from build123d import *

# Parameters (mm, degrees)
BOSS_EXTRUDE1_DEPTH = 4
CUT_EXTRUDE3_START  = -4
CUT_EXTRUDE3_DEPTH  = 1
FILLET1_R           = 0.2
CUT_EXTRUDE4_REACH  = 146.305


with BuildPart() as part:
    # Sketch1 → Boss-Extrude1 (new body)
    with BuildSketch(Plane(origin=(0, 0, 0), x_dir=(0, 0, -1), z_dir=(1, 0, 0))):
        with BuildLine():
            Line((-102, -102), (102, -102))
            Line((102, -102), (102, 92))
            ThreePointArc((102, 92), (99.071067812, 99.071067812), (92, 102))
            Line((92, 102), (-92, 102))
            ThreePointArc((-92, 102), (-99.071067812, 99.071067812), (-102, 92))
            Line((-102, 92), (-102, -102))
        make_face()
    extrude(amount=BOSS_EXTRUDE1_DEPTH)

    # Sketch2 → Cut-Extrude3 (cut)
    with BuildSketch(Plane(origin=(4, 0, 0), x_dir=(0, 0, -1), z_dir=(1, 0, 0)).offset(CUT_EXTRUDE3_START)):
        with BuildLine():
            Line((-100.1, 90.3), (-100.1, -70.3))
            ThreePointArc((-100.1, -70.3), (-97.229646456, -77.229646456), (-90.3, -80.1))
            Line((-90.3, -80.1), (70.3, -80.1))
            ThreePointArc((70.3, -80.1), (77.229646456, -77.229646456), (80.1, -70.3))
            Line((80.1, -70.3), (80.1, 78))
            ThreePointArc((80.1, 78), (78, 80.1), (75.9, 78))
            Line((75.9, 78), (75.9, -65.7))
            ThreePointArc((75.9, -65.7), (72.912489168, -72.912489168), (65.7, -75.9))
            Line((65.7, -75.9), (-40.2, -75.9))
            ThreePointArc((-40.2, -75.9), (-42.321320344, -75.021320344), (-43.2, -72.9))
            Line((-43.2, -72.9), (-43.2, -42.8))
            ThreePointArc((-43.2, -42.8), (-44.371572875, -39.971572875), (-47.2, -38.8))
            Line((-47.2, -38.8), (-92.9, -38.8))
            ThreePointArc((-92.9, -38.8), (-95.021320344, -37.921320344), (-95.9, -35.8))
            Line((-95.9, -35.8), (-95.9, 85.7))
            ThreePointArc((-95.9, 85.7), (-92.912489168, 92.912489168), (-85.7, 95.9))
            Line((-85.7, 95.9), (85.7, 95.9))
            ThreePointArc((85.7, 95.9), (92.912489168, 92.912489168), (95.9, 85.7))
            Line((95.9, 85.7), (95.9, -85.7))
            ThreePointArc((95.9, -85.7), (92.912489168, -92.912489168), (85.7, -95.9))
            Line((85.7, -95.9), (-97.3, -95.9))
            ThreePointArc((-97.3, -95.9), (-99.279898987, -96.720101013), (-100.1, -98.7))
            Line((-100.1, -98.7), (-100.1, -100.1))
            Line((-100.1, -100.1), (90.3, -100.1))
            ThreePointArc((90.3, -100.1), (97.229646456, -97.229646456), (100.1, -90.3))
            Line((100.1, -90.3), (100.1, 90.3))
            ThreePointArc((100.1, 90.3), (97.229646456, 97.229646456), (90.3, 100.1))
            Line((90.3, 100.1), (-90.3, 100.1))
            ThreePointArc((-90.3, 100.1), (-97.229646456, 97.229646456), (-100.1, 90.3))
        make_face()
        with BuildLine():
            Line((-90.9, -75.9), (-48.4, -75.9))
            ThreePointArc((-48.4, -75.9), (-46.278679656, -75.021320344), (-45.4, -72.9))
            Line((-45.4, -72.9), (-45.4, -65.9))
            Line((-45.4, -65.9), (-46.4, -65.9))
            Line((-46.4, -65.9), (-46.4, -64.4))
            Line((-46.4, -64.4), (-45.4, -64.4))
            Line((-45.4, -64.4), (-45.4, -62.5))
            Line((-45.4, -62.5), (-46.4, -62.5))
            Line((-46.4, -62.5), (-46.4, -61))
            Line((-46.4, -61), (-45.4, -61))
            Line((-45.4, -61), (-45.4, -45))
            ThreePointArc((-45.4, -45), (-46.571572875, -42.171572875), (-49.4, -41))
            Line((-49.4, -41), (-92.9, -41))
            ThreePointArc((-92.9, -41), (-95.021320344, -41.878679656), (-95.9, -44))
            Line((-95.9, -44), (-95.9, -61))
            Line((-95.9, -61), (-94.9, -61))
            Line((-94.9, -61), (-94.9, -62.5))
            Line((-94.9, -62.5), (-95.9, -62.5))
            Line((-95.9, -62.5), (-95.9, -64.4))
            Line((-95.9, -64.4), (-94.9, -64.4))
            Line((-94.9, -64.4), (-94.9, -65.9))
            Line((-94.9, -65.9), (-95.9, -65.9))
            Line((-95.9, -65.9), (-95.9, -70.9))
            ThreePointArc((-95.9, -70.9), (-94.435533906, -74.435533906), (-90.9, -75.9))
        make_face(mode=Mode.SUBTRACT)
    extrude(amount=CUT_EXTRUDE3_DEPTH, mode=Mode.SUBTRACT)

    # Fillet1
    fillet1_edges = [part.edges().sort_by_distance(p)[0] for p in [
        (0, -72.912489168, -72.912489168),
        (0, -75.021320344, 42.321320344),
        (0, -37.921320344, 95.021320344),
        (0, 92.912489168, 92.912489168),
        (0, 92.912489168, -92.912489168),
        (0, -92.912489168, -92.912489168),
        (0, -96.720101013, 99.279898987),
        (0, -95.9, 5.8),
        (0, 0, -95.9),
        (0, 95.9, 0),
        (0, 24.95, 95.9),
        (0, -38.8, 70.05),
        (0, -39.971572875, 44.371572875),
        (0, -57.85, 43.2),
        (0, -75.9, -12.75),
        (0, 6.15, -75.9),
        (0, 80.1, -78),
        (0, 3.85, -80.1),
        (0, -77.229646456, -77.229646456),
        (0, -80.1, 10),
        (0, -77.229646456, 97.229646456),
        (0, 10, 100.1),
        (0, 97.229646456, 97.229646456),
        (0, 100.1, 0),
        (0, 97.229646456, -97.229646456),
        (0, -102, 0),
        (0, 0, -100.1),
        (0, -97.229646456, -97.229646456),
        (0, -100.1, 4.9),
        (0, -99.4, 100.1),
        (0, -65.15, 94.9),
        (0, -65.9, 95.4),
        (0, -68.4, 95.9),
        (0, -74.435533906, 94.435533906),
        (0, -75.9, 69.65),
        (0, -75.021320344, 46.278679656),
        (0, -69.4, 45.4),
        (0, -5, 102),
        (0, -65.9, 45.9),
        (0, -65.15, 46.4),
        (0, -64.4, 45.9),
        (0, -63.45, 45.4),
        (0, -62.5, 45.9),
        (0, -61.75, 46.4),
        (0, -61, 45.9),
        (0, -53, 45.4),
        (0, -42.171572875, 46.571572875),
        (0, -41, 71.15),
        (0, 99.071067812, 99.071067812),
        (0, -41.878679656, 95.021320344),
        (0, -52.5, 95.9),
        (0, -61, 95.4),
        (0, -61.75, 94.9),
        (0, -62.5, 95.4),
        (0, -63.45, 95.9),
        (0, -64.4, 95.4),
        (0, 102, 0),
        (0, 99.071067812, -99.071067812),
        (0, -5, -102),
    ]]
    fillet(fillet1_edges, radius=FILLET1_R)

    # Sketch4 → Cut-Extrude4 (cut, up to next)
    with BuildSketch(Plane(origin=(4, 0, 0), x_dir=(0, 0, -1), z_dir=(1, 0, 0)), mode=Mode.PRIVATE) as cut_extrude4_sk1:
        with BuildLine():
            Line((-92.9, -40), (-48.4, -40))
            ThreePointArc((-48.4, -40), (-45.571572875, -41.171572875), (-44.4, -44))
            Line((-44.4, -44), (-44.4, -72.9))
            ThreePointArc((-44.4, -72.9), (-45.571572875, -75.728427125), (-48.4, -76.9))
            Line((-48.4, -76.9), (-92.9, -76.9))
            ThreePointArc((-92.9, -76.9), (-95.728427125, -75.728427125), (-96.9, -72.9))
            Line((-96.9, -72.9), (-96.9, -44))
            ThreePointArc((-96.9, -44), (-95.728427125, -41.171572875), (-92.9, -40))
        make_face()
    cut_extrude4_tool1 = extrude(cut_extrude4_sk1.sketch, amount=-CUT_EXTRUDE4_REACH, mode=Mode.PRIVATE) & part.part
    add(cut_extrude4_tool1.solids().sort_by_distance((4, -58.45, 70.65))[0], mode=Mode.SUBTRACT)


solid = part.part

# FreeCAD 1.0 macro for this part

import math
import FreeCAD as App
import Part
import Sketcher
Q = App.Units.Quantity


def edges_at(feature, points):
    """Names of the edges that pass closest to the given points."""
    edges = feature.Shape.Edges
    near = lambda p: min(range(len(edges)), key=lambda i: edges[i].distToShape(Part.Vertex(*p))[0])
    return sorted({f"Edge{near(p) + 1}" for p in points})

doc = App.newDocument("Part")
body = doc.addObject("PartDesign::Body", "Body")

# Sketch on YZ plane
sketch1 = doc.addObject("Sketcher::SketchObject", "Sketch")
body.addObject(sketch1)
sketch1.AttachmentSupport = (doc.YZ_Plane, [""])
sketch1.MapMode = "FlatFace"
sketch1.addGeometry([
    Part.LineSegment(App.Vector(-102, 102, 0), App.Vector(-102, -102, 0)),  # 0
    Part.LineSegment(App.Vector(-102, -102, 0), App.Vector(92, -102, 0)),  # 1
    Part.ArcOfCircle(Part.Circle(App.Vector(92, -92, 0), App.Vector(0, 0, 1), 10), math.radians(-90), math.radians(0)),  # 2
    Part.LineSegment(App.Vector(102, -92, 0), App.Vector(102, 92, 0)),  # 3
    Part.ArcOfCircle(Part.Circle(App.Vector(92, 92, 0), App.Vector(0, 0, 1), 10), math.radians(0), math.radians(90)),  # 4
    Part.LineSegment(App.Vector(92, 102, 0), App.Vector(-102, 102, 0)),  # 5
], False)
sketch1.addConstraint([
    Sketcher.Constraint("Coincident", 0, 2, 1, 1),
    Sketcher.Constraint("Tangent", 1, 2, 2, 1),
    Sketcher.Constraint("Tangent", 2, 2, 3, 1),
    Sketcher.Constraint("Tangent", 3, 2, 4, 1),
    Sketcher.Constraint("Tangent", 4, 2, 5, 1),
    Sketcher.Constraint("Coincident", 5, 2, 0, 1),
    Sketcher.Constraint("Vertical", 0),
    Sketcher.Constraint("Horizontal", 1),
    Sketcher.Constraint("Vertical", 3),
    Sketcher.Constraint("Horizontal", 5),
    Sketcher.Constraint("Equal", 2, 4),
    Sketcher.Constraint("Radius", 2, Q("10 mm")),
    Sketcher.Constraint("DistanceX", 1, 1, 1, 2, Q("194 mm")),
    Sketcher.Constraint("DistanceY", 0, 2, 0, 1, Q("204 mm")),
    Sketcher.Constraint("DistanceX", -1, 1, 2, 3, Q("92 mm")),
    Sketcher.Constraint("DistanceY", 2, 3, -1, 1, Q("92 mm")),
])
pad1 = doc.addObject("PartDesign::Pad", "Pad")
body.addObject(pad1)
pad1.Profile = sketch1
pad1.Length = 4

# Sketch on YZ plane
sketch2 = doc.addObject("Sketcher::SketchObject", "Sketch001")
body.addObject(sketch2)
sketch2.AttachmentSupport = (doc.YZ_Plane, [""])
sketch2.MapMode = "FlatFace"
sketch2.addGeometry([
    Part.LineSegment(App.Vector(90.3, 100.1, 0), App.Vector(-70.3, 100.1, 0)),  # 0
    Part.ArcOfCircle(Part.Circle(App.Vector(-70.3, 90.3, 0), App.Vector(0, 0, 1), 9.8), math.radians(90), math.radians(180)),  # 1
    Part.LineSegment(App.Vector(-80.1, 90.3, 0), App.Vector(-80.1, -70.3, 0)),  # 2
    Part.ArcOfCircle(Part.Circle(App.Vector(-70.3, -70.3, 0), App.Vector(0, 0, 1), 9.8), math.radians(180), math.radians(270)),  # 3
    Part.LineSegment(App.Vector(-70.3, -80.1, 0), App.Vector(78, -80.1, 0)),  # 4
    Part.ArcOfCircle(Part.Circle(App.Vector(78, -78, 0), App.Vector(0, 0, 1), 2.1), math.radians(-90), math.radians(90)),  # 5
    Part.LineSegment(App.Vector(78, -75.9, 0), App.Vector(-65.7, -75.9, 0)),  # 6
    Part.ArcOfCircle(Part.Circle(App.Vector(-65.7, -65.7, 0), App.Vector(0, 0, 1), 10.2), math.radians(180), math.radians(270)),  # 7
    Part.LineSegment(App.Vector(-75.9, -65.7, 0), App.Vector(-75.9, 40.2, 0)),  # 8
    Part.ArcOfCircle(Part.Circle(App.Vector(-72.9, 40.2, 0), App.Vector(0, 0, 1), 3), math.radians(90), math.radians(180)),  # 9
    Part.LineSegment(App.Vector(-72.9, 43.2, 0), App.Vector(-42.8, 43.2, 0)),  # 10
    Part.ArcOfCircle(Part.Circle(App.Vector(-42.8, 47.2, 0), App.Vector(0, 0, 1), 4), math.radians(-90), math.radians(0)),  # 11
    Part.LineSegment(App.Vector(-38.8, 47.2, 0), App.Vector(-38.8, 92.9, 0)),  # 12
    Part.ArcOfCircle(Part.Circle(App.Vector(-35.8, 92.9, 0), App.Vector(0, 0, 1), 3), math.radians(90), math.radians(180)),  # 13
    Part.LineSegment(App.Vector(-35.8, 95.9, 0), App.Vector(85.7, 95.9, 0)),  # 14
    Part.ArcOfCircle(Part.Circle(App.Vector(85.7, 85.7, 0), App.Vector(0, 0, 1), 10.2), math.radians(0), math.radians(90)),  # 15
    Part.LineSegment(App.Vector(95.9, 85.7, 0), App.Vector(95.9, -85.7, 0)),  # 16
    Part.ArcOfCircle(Part.Circle(App.Vector(85.7, -85.7, 0), App.Vector(0, 0, 1), 10.2), math.radians(-90), math.radians(0)),  # 17
    Part.LineSegment(App.Vector(85.7, -95.9, 0), App.Vector(-85.7, -95.9, 0)),  # 18
    Part.ArcOfCircle(Part.Circle(App.Vector(-85.7, -85.7, 0), App.Vector(0, 0, 1), 10.2), math.radians(180), math.radians(270)),  # 19
    Part.LineSegment(App.Vector(-95.9, -85.7, 0), App.Vector(-95.9, 97.3, 0)),  # 20
    Part.ArcOfCircle(Part.Circle(App.Vector(-98.7, 97.3, 0), App.Vector(0, 0, 1), 2.8), math.radians(0), math.radians(90)),  # 21
    Part.LineSegment(App.Vector(-98.7, 100.1, 0), App.Vector(-100.1, 100.1, 0)),  # 22
    Part.LineSegment(App.Vector(-100.1, 100.1, 0), App.Vector(-100.1, -90.3, 0)),  # 23
    Part.ArcOfCircle(Part.Circle(App.Vector(-90.3, -90.3, 0), App.Vector(0, 0, 1), 9.8), math.radians(180), math.radians(270)),  # 24
    Part.LineSegment(App.Vector(-90.3, -100.1, 0), App.Vector(90.3, -100.1, 0)),  # 25
    Part.ArcOfCircle(Part.Circle(App.Vector(90.3, -90.3, 0), App.Vector(0, 0, 1), 9.8), math.radians(-90), math.radians(0)),  # 26
    Part.LineSegment(App.Vector(100.1, -90.3, 0), App.Vector(100.1, 90.3, 0)),  # 27
    Part.ArcOfCircle(Part.Circle(App.Vector(90.3, 90.3, 0), App.Vector(0, 0, 1), 9.8), math.radians(0), math.radians(90)),  # 28
    Part.LineSegment(App.Vector(-75.9, 48.4, 0), App.Vector(-75.9, 90.9, 0)),  # 29
    Part.ArcOfCircle(Part.Circle(App.Vector(-70.9, 90.9, 0), App.Vector(0, 0, 1), 5), math.radians(90), math.radians(180)),  # 30
    Part.LineSegment(App.Vector(-70.9, 95.9, 0), App.Vector(-65.9, 95.9, 0)),  # 31
    Part.LineSegment(App.Vector(-65.9, 95.9, 0), App.Vector(-65.9, 94.9, 0)),  # 32
    Part.LineSegment(App.Vector(-65.9, 94.9, 0), App.Vector(-64.4, 94.9, 0)),  # 33
    Part.LineSegment(App.Vector(-64.4, 94.9, 0), App.Vector(-64.4, 95.9, 0)),  # 34
    Part.LineSegment(App.Vector(-64.4, 95.9, 0), App.Vector(-62.5, 95.9, 0)),  # 35
    Part.LineSegment(App.Vector(-62.5, 95.9, 0), App.Vector(-62.5, 94.9, 0)),  # 36
    Part.LineSegment(App.Vector(-62.5, 94.9, 0), App.Vector(-61, 94.9, 0)),  # 37
    Part.LineSegment(App.Vector(-61, 94.9, 0), App.Vector(-61, 95.9, 0)),  # 38
    Part.LineSegment(App.Vector(-61, 95.9, 0), App.Vector(-44, 95.9, 0)),  # 39
    Part.ArcOfCircle(Part.Circle(App.Vector(-44, 92.9, 0), App.Vector(0, 0, 1), 3), math.radians(0), math.radians(90)),  # 40
    Part.LineSegment(App.Vector(-41, 92.9, 0), App.Vector(-41, 49.4, 0)),  # 41
    Part.ArcOfCircle(Part.Circle(App.Vector(-45, 49.4, 0), App.Vector(0, 0, 1), 4), math.radians(-90), math.radians(0)),  # 42
    Part.LineSegment(App.Vector(-45, 45.4, 0), App.Vector(-61, 45.4, 0)),  # 43
    Part.LineSegment(App.Vector(-61, 45.4, 0), App.Vector(-61, 46.4, 0)),  # 44
    Part.LineSegment(App.Vector(-61, 46.4, 0), App.Vector(-62.5, 46.4, 0)),  # 45
    Part.LineSegment(App.Vector(-62.5, 46.4, 0), App.Vector(-62.5, 45.4, 0)),  # 46
    Part.LineSegment(App.Vector(-62.5, 45.4, 0), App.Vector(-64.4, 45.4, 0)),  # 47
    Part.LineSegment(App.Vector(-64.4, 45.4, 0), App.Vector(-64.4, 46.4, 0)),  # 48
    Part.LineSegment(App.Vector(-64.4, 46.4, 0), App.Vector(-65.9, 46.4, 0)),  # 49
    Part.LineSegment(App.Vector(-65.9, 46.4, 0), App.Vector(-65.9, 45.4, 0)),  # 50
    Part.LineSegment(App.Vector(-65.9, 45.4, 0), App.Vector(-72.9, 45.4, 0)),  # 51
    Part.ArcOfCircle(Part.Circle(App.Vector(-72.9, 48.4, 0), App.Vector(0, 0, 1), 3), math.radians(180), math.radians(270)),  # 52
], False)
sketch2.addConstraint([
    Sketcher.Constraint("Tangent", 0, 2, 1, 1),
    Sketcher.Constraint("Tangent", 1, 2, 2, 1),
    Sketcher.Constraint("Tangent", 2, 2, 3, 1),
    Sketcher.Constraint("Tangent", 3, 2, 4, 1),
    Sketcher.Constraint("Tangent", 4, 2, 5, 1),
    Sketcher.Constraint("Tangent", 5, 2, 6, 1),
    Sketcher.Constraint("Tangent", 6, 2, 7, 2),
    Sketcher.Constraint("Tangent", 7, 1, 8, 1),
    Sketcher.Constraint("Tangent", 8, 2, 9, 2),
    Sketcher.Constraint("Tangent", 9, 1, 10, 1),
    Sketcher.Constraint("Tangent", 10, 2, 11, 1),
    Sketcher.Constraint("Tangent", 11, 2, 12, 1),
    Sketcher.Constraint("Tangent", 12, 2, 13, 2),
    Sketcher.Constraint("Tangent", 13, 1, 14, 1),
    Sketcher.Constraint("Tangent", 14, 2, 15, 2),
    Sketcher.Constraint("Tangent", 15, 1, 16, 1),
    Sketcher.Constraint("Tangent", 16, 2, 17, 2),
    Sketcher.Constraint("Tangent", 17, 1, 18, 1),
    Sketcher.Constraint("Tangent", 18, 2, 19, 2),
    Sketcher.Constraint("Tangent", 19, 1, 20, 1),
    Sketcher.Constraint("Tangent", 20, 2, 21, 1),
    Sketcher.Constraint("Tangent", 21, 2, 22, 1),
    Sketcher.Constraint("Coincident", 22, 2, 23, 1),
    Sketcher.Constraint("Tangent", 23, 2, 24, 1),
    Sketcher.Constraint("Tangent", 24, 2, 25, 1),
    Sketcher.Constraint("Tangent", 25, 2, 26, 1),
    Sketcher.Constraint("Tangent", 26, 2, 27, 1),
    Sketcher.Constraint("Tangent", 27, 2, 28, 1),
    Sketcher.Constraint("Tangent", 28, 2, 0, 1),
    Sketcher.Constraint("Tangent", 29, 2, 30, 2),
    Sketcher.Constraint("Tangent", 30, 1, 31, 1),
    Sketcher.Constraint("Coincident", 31, 2, 32, 1),
    Sketcher.Constraint("Coincident", 32, 2, 33, 1),
    Sketcher.Constraint("Coincident", 33, 2, 34, 1),
    Sketcher.Constraint("Coincident", 34, 2, 35, 1),
    Sketcher.Constraint("Coincident", 35, 2, 36, 1),
    Sketcher.Constraint("Coincident", 36, 2, 37, 1),
    Sketcher.Constraint("Coincident", 37, 2, 38, 1),
    Sketcher.Constraint("Coincident", 38, 2, 39, 1),
    Sketcher.Constraint("Tangent", 39, 2, 40, 2),
    Sketcher.Constraint("Tangent", 40, 1, 41, 1),
    Sketcher.Constraint("Tangent", 41, 2, 42, 2),
    Sketcher.Constraint("Tangent", 42, 1, 43, 1),
    Sketcher.Constraint("Coincident", 43, 2, 44, 1),
    Sketcher.Constraint("Coincident", 44, 2, 45, 1),
    Sketcher.Constraint("Coincident", 45, 2, 46, 1),
    Sketcher.Constraint("Coincident", 46, 2, 47, 1),
    Sketcher.Constraint("Coincident", 47, 2, 48, 1),
    Sketcher.Constraint("Coincident", 48, 2, 49, 1),
    Sketcher.Constraint("Coincident", 49, 2, 50, 1),
    Sketcher.Constraint("Coincident", 50, 2, 51, 1),
    Sketcher.Constraint("Tangent", 51, 2, 52, 2),
    Sketcher.Constraint("Tangent", 52, 1, 29, 1),
    Sketcher.Constraint("Horizontal", 0),
    Sketcher.Constraint("Vertical", 2),
    Sketcher.Constraint("Horizontal", 4),
    Sketcher.Constraint("Horizontal", 6),
    Sketcher.Constraint("Vertical", 8),
    Sketcher.Constraint("Horizontal", 10),
    Sketcher.Constraint("Vertical", 12),
    Sketcher.Constraint("Horizontal", 14),
    Sketcher.Constraint("Vertical", 16),
    Sketcher.Constraint("Horizontal", 18),
    Sketcher.Constraint("Vertical", 20),
    Sketcher.Constraint("Horizontal", 22),
    Sketcher.Constraint("Vertical", 23),
    Sketcher.Constraint("Horizontal", 25),
    Sketcher.Constraint("Vertical", 27),
    Sketcher.Constraint("Vertical", 29),
    Sketcher.Constraint("Horizontal", 31),
    Sketcher.Constraint("Vertical", 32),
    Sketcher.Constraint("Horizontal", 33),
    Sketcher.Constraint("Vertical", 34),
    Sketcher.Constraint("Horizontal", 35),
    Sketcher.Constraint("Vertical", 36),
    Sketcher.Constraint("Horizontal", 37),
    Sketcher.Constraint("Vertical", 38),
    Sketcher.Constraint("Horizontal", 39),
    Sketcher.Constraint("Vertical", 41),
    Sketcher.Constraint("Horizontal", 43),
    Sketcher.Constraint("Vertical", 44),
    Sketcher.Constraint("Horizontal", 45),
    Sketcher.Constraint("Vertical", 46),
    Sketcher.Constraint("Horizontal", 47),
    Sketcher.Constraint("Vertical", 48),
    Sketcher.Constraint("Horizontal", 49),
    Sketcher.Constraint("Vertical", 50),
    Sketcher.Constraint("Horizontal", 51),
    Sketcher.Constraint("Equal", 1, 3),
    Sketcher.Constraint("Equal", 9, 13),
    Sketcher.Constraint("Equal", 7, 15),
    Sketcher.Constraint("Equal", 15, 17),
    Sketcher.Constraint("Equal", 17, 19),
    Sketcher.Constraint("Equal", 3, 24),
    Sketcher.Constraint("Equal", 24, 26),
    Sketcher.Constraint("Equal", 26, 28),
    Sketcher.Constraint("Equal", 13, 40),
    Sketcher.Constraint("Equal", 11, 42),
    Sketcher.Constraint("Equal", 40, 52),
    Sketcher.Constraint("Symmetric", 15, 3, 19, 3, -1, 1),
    Sketcher.Constraint("Symmetric", 24, 3, 28, 3, -1, 1),
    Sketcher.Constraint("Horizontal", 13, 3, 40, 3),
    Sketcher.Constraint("Horizontal", 0, 2, 21, 2),
    Sketcher.Constraint("Horizontal", 14, 2, 30, 1),
    Sketcher.Constraint("Horizontal", 31, 2, 34, 2),
    Sketcher.Constraint("Horizontal", 33, 2, 36, 2),
    Sketcher.Constraint("Horizontal", 43, 2, 46, 2),
    Sketcher.Constraint("Horizontal", 45, 2, 48, 2),
    Sketcher.Constraint("Horizontal", 47, 2, 50, 2),
    Sketcher.Constraint("Vertical", 9, 3, 52, 3),
    Sketcher.Constraint("Vertical", 38, 2, 43, 2),
    Sketcher.Constraint("Vertical", 36, 2, 45, 2),
    Sketcher.Constraint("Vertical", 34, 2, 47, 2),
    Sketcher.Constraint("Vertical", 32, 2, 49, 2),
    Sketcher.Constraint("Equal", 33, 37),
    Sketcher.Constraint("Equal", 0, 2),
    Sketcher.Constraint("Equal", 18, 16),
    Sketcher.Constraint("Equal", 25, 27),
    Sketcher.Constraint("Equal", 38, 44),
    Sketcher.Constraint("Radius", 9, Q("3 mm")),
    Sketcher.Constraint("Radius", 11, Q("4 mm")),
    Sketcher.Constraint("Radius", 30, Q("5 mm")),
    Sketcher.Constraint("Radius", 1, Q("9.8 mm")),
    Sketcher.Constraint("Radius", 5, Q("2.1 mm")),
    Sketcher.Constraint("Radius", 7, Q("10.2 mm")),
    Sketcher.Constraint("Radius", 21, Q("2.8 mm")),
    Sketcher.Constraint("DistanceX", 31, 1, 31, 2, Q("5 mm")),
    Sketcher.Constraint("DistanceX", 39, 1, 39, 2, Q("17 mm")),
    Sketcher.Constraint("DistanceY", 20, 1, 20, 2, Q("183 mm")),
    Sketcher.Constraint("DistanceY", 32, 2, 32, 1, Q("1 mm")),
    Sketcher.Constraint("DistanceX", 0, 2, 0, 1, Q("160.6 mm")),
    Sketcher.Constraint("DistanceX", 4, 1, 4, 2, Q("148.3 mm")),
    Sketcher.Constraint("DistanceX", 6, 2, 6, 1, Q("143.7 mm")),
    Sketcher.Constraint("DistanceX", 10, 1, 10, 2, Q("30.1 mm")),
    Sketcher.Constraint("DistanceX", 14, 1, 14, 2, Q("121.5 mm")),
    Sketcher.Constraint("DistanceX", 33, 1, 33, 2, Q("1.5 mm")),
    Sketcher.Constraint("DistanceX", 35, 1, 35, 2, Q("1.9 mm")),
    Sketcher.Constraint("DistanceY", 8, 1, 8, 2, Q("105.9 mm")),
    Sketcher.Constraint("DistanceY", 29, 1, 29, 2, Q("42.5 mm")),
])
pocket1 = doc.addObject("PartDesign::Pocket", "Pocket")
body.addObject(pocket1)
pocket1.Profile = sketch2
pocket1.Length = 1
pocket1.Reversed = True
doc.recompute()

fillet = doc.addObject("PartDesign::Fillet", "Fillet")
body.addObject(fillet)
fillet.Base = (pocket1, edges_at(pocket1, [
    (0, -72.912, -72.912),
    (0, -75.021, 42.321),
    (0, -37.921, 95.021),
    (0, 92.912, 92.912),
    (0, 92.912, -92.912),
    (0, -92.912, -92.912),
    (0, -96.72, 99.28),
    (0, -95.9, 5.8),
    (0, 0, -95.9),
    (0, 95.9, 0),
    (0, 24.95, 95.9),
    (0, -38.8, 70.05),
    (0, -39.972, 44.372),
    (0, -57.85, 43.2),
    (0, -75.9, -12.75),
    (0, 6.15, -75.9),
    (0, 80.1, -78),
    (0, 3.85, -80.1),
    (0, -77.23, -77.23),
    (0, -80.1, 10),
    (0, -77.23, 97.23),
    (0, 10, 100.1),
    (0, 97.23, 97.23),
    (0, 100.1, 0),
    (0, 97.23, -97.23),
    (0, -102, 0),
    (0, 0, -100.1),
    (0, -97.23, -97.23),
    (0, -100.1, 4.9),
    (0, -99.4, 100.1),
    (0, -65.15, 94.9),
    (0, -65.9, 95.4),
    (0, -68.4, 95.9),
    (0, -74.436, 94.436),
    (0, -75.9, 69.65),
    (0, -75.021, 46.279),
    (0, -69.4, 45.4),
    (0, -5, 102),
    (0, -65.9, 45.9),
    (0, -65.15, 46.4),
    (0, -64.4, 45.9),
    (0, -63.45, 45.4),
    (0, -62.5, 45.9),
    (0, -61.75, 46.4),
    (0, -61, 45.9),
    (0, -53, 45.4),
    (0, -42.172, 46.572),
    (0, -41, 71.15),
    (0, 99.071, 99.071),
    (0, -41.879, 95.021),
    (0, -52.5, 95.9),
    (0, -61, 95.4),
    (0, -61.75, 94.9),
    (0, -62.5, 95.4),
    (0, -63.45, 95.9),
    (0, -64.4, 95.4),
    (0, 102, 0),
    (0, 99.071, -99.071),
    (0, -5, -102),
]))
fillet.Radius = 0.2

# Sketch on YZ plane
sketch3 = doc.addObject("Sketcher::SketchObject", "Sketch002")
body.addObject(sketch3)
sketch3.AttachmentSupport = (doc.YZ_Plane, [""])
sketch3.MapMode = "FlatFace"
sketch3.AttachmentOffset = App.Placement(App.Vector(0, 0, 4), App.Rotation())
sketch3.addGeometry([
    Part.LineSegment(App.Vector(-40, 48.4, 0), App.Vector(-40, 92.9, 0)),  # 0
    Part.ArcOfCircle(Part.Circle(App.Vector(-44, 92.9, 0), App.Vector(0, 0, 1), 4), math.radians(0), math.radians(90)),  # 1
    Part.LineSegment(App.Vector(-44, 96.9, 0), App.Vector(-72.9, 96.9, 0)),  # 2
    Part.ArcOfCircle(Part.Circle(App.Vector(-72.9, 92.9, 0), App.Vector(0, 0, 1), 4), math.radians(90), math.radians(180)),  # 3
    Part.LineSegment(App.Vector(-76.9, 92.9, 0), App.Vector(-76.9, 48.4, 0)),  # 4
    Part.ArcOfCircle(Part.Circle(App.Vector(-72.9, 48.4, 0), App.Vector(0, 0, 1), 4), math.radians(180), math.radians(270)),  # 5
    Part.LineSegment(App.Vector(-72.9, 44.4, 0), App.Vector(-44, 44.4, 0)),  # 6
    Part.ArcOfCircle(Part.Circle(App.Vector(-44, 48.4, 0), App.Vector(0, 0, 1), 4), math.radians(-90), math.radians(0)),  # 7
], False)
sketch3.addConstraint([
    Sketcher.Constraint("Tangent", 0, 2, 1, 1),
    Sketcher.Constraint("Tangent", 1, 2, 2, 1),
    Sketcher.Constraint("Tangent", 2, 2, 3, 1),
    Sketcher.Constraint("Tangent", 3, 2, 4, 1),
    Sketcher.Constraint("Tangent", 4, 2, 5, 1),
    Sketcher.Constraint("Tangent", 5, 2, 6, 1),
    Sketcher.Constraint("Tangent", 6, 2, 7, 1),
    Sketcher.Constraint("Tangent", 7, 2, 0, 1),
    Sketcher.Constraint("Vertical", 0),
    Sketcher.Constraint("Horizontal", 2),
    Sketcher.Constraint("Vertical", 4),
    Sketcher.Constraint("Horizontal", 6),
    Sketcher.Constraint("Equal", 1, 3),
    Sketcher.Constraint("Equal", 3, 5),
    Sketcher.Constraint("Equal", 5, 7),
    Sketcher.Constraint("Radius", 1, Q("4 mm")),
    Sketcher.Constraint("DistanceX", 2, 2, 2, 1, Q("28.9 mm")),
    Sketcher.Constraint("DistanceY", 0, 1, 0, 2, Q("44.5 mm")),
    Sketcher.Constraint("DistanceX", 1, 3, -1, 1, Q("44 mm")),
    Sketcher.Constraint("DistanceY", -1, 1, 1, 3, Q("92.9 mm")),
])
pocket2 = doc.addObject("PartDesign::Pocket", "Pocket001")
body.addObject(pocket2)
pocket2.Profile = sketch3
pocket2.Type = "UpToFirst"

doc.recompute()
